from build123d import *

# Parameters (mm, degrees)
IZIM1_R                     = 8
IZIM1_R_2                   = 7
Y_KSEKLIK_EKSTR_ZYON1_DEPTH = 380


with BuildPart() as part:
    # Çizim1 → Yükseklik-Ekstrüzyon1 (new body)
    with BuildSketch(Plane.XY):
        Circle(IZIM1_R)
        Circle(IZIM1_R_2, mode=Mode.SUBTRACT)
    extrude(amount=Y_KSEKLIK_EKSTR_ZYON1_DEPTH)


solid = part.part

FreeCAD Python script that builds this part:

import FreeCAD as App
import Part
import Sketcher

V = App.Vector

doc = App.newDocument("Part")
body = doc.addObject("PartDesign::Body", "Body")

# Sketch on XY plane
sketch1 = doc.addObject("Sketcher::SketchObject", "Sketch")
body.addObject(sketch1)
sketch1.AttachmentSupport = (doc.XY_Plane, [""])
sketch1.MapMode = "FlatFace"
sketch1.addGeometry([
    Part.Circle(V(0, 0, 0), V(0, 0, 1), 8),
    Part.Circle(V(0, 0, 0), V(0, 0, 1), 7),
], False)
sketch1.addConstraint([
    Sketcher.Constraint("Coincident", 0, 3, -1, 1),
    Sketcher.Constraint("Coincident", 1, 3, -1, 1),
    Sketcher.Constraint("Diameter", 0, 16.0),
    Sketcher.Constraint("Diameter", 1, 14.0),
])
pad1 = doc.addObject("PartDesign::Pad", "Pad")
body.addObject(pad1)
pad1.Profile = sketch1
pad1.Length = 380

doc.recompute()
